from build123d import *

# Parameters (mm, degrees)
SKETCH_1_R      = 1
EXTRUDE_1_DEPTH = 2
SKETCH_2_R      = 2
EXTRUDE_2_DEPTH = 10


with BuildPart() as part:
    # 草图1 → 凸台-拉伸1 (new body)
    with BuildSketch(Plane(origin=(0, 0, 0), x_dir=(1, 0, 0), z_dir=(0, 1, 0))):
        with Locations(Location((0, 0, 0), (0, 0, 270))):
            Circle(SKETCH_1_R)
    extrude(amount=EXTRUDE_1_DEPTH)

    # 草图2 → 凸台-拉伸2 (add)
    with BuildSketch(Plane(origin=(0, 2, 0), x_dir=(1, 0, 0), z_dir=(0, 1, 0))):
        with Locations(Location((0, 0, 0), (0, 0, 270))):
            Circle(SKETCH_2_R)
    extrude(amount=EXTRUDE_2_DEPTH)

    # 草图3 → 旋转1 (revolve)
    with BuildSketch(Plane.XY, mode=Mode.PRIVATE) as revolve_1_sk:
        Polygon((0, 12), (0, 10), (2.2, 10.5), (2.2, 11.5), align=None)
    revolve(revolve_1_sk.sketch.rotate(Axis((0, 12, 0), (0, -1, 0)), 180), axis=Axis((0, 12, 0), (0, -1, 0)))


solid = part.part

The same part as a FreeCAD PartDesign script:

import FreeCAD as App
import Part
import Sketcher

V = App.Vector


def add_polygon(sketch, points):
    """Adds a closed chain of lines whose ends are joined by coincident constraints."""
    first, n = sketch.GeometryCount, len(points)
    for a, b in zip(points, points[1:] + points[:1]):
        sketch.addGeometry(Part.LineSegment(App.Vector(*a, 0), App.Vector(*b, 0)), False)
    for i in range(n):
        sketch.addConstraint(Sketcher.Constraint("Coincident", first + i, 2, first + (i + 1) % n, 1))

doc = App.newDocument("Part")
body = doc.addObject("PartDesign::Body", "Body")

# Sketch on XZ plane
sketch1 = body.newObject("Sketcher::SketchObject", "Sketch")
sketch1.AttachmentSupport = (doc.getObject("XZ_Plane"), [""])
sketch1.MapMode = "FlatFace"
sketch1.addGeometry(Part.Circle(V(0, 0, 0), V(0, 0, 1), 1), False)
sketch1.addConstraint(Sketcher.Constraint("Coincident", 0, 3, -1, 1))
sketch1.addConstraint(Sketcher.Constraint("Diameter", 0, 2.0))
pad1 = body.newObject("PartDesign::Pad", "Pad")
pad1.Profile = sketch1
pad1.Length = 2
pad1.Reversed = True

# Sketch on XZ plane
sketch2 = body.newObject("Sketcher::SketchObject", "Sketch001")
sketch2.AttachmentSupport = (doc.getObject("XZ_Plane"), [""])
sketch2.MapMode = "FlatFace"
sketch2.AttachmentOffset = App.Placement(V(0, 0, -2), App.Rotation())
sketch2.addGeometry(Part.Circle(V(0, 0, 0), V(0, 0, 1), 2), False)
sketch2.addConstraint(Sketcher.Constraint("Coincident", 0, 3, -1, 1))
sketch2.addConstraint(Sketcher.Constraint("Diameter", 0, 4.0))
pad2 = body.newObject("PartDesign::Pad", "Pad001")
pad2.Profile = sketch2
pad2.Length = 10
pad2.Reversed = True

# Sketch on XY plane
sketch3 = body.newObject("Sketcher::SketchObject", "Sketch002")
sketch3.AttachmentSupport = (doc.getObject("XY_Plane"), [""])
sketch3.MapMode = "FlatFace"
add_polygon(sketch3, [(0, 12), (0, 10), (2.2, 10.5), (2.2, 11.5)])  # lines 0-3
sketch3.addConstraint(Sketcher.Constraint("Vertical", 0))
sketch3.addConstraint(Sketcher.Constraint("Vertical", 2))
sketch3.addConstraint(Sketcher.Constraint("PointOnObject", 0, 2, -2))
sketch3.addConstraint(Sketcher.Constraint("Equal", 1, 3))
sketch3.addConstraint(Sketcher.Constraint("DistanceY", 0, 2, 0, 1, 2.0))
sketch3.addConstraint(Sketcher.Constraint("DistanceY", 2, 1, 2, 2, 1.0))
sketch3.addConstraint(Sketcher.Constraint("DistanceY", -1, 1, 0, 2, 10.0))
sketch3.addConstraint(Sketcher.Constraint("DistanceX", -1, 1, 1, 2, 2.2))
revolution = body.newObject("PartDesign::Revolution", "Revolution")
revolution.Profile = sketch3
revolution.ReferenceAxis = (sketch3, ["V_Axis"])
revolution.Angle = 360

doc.recompute()
